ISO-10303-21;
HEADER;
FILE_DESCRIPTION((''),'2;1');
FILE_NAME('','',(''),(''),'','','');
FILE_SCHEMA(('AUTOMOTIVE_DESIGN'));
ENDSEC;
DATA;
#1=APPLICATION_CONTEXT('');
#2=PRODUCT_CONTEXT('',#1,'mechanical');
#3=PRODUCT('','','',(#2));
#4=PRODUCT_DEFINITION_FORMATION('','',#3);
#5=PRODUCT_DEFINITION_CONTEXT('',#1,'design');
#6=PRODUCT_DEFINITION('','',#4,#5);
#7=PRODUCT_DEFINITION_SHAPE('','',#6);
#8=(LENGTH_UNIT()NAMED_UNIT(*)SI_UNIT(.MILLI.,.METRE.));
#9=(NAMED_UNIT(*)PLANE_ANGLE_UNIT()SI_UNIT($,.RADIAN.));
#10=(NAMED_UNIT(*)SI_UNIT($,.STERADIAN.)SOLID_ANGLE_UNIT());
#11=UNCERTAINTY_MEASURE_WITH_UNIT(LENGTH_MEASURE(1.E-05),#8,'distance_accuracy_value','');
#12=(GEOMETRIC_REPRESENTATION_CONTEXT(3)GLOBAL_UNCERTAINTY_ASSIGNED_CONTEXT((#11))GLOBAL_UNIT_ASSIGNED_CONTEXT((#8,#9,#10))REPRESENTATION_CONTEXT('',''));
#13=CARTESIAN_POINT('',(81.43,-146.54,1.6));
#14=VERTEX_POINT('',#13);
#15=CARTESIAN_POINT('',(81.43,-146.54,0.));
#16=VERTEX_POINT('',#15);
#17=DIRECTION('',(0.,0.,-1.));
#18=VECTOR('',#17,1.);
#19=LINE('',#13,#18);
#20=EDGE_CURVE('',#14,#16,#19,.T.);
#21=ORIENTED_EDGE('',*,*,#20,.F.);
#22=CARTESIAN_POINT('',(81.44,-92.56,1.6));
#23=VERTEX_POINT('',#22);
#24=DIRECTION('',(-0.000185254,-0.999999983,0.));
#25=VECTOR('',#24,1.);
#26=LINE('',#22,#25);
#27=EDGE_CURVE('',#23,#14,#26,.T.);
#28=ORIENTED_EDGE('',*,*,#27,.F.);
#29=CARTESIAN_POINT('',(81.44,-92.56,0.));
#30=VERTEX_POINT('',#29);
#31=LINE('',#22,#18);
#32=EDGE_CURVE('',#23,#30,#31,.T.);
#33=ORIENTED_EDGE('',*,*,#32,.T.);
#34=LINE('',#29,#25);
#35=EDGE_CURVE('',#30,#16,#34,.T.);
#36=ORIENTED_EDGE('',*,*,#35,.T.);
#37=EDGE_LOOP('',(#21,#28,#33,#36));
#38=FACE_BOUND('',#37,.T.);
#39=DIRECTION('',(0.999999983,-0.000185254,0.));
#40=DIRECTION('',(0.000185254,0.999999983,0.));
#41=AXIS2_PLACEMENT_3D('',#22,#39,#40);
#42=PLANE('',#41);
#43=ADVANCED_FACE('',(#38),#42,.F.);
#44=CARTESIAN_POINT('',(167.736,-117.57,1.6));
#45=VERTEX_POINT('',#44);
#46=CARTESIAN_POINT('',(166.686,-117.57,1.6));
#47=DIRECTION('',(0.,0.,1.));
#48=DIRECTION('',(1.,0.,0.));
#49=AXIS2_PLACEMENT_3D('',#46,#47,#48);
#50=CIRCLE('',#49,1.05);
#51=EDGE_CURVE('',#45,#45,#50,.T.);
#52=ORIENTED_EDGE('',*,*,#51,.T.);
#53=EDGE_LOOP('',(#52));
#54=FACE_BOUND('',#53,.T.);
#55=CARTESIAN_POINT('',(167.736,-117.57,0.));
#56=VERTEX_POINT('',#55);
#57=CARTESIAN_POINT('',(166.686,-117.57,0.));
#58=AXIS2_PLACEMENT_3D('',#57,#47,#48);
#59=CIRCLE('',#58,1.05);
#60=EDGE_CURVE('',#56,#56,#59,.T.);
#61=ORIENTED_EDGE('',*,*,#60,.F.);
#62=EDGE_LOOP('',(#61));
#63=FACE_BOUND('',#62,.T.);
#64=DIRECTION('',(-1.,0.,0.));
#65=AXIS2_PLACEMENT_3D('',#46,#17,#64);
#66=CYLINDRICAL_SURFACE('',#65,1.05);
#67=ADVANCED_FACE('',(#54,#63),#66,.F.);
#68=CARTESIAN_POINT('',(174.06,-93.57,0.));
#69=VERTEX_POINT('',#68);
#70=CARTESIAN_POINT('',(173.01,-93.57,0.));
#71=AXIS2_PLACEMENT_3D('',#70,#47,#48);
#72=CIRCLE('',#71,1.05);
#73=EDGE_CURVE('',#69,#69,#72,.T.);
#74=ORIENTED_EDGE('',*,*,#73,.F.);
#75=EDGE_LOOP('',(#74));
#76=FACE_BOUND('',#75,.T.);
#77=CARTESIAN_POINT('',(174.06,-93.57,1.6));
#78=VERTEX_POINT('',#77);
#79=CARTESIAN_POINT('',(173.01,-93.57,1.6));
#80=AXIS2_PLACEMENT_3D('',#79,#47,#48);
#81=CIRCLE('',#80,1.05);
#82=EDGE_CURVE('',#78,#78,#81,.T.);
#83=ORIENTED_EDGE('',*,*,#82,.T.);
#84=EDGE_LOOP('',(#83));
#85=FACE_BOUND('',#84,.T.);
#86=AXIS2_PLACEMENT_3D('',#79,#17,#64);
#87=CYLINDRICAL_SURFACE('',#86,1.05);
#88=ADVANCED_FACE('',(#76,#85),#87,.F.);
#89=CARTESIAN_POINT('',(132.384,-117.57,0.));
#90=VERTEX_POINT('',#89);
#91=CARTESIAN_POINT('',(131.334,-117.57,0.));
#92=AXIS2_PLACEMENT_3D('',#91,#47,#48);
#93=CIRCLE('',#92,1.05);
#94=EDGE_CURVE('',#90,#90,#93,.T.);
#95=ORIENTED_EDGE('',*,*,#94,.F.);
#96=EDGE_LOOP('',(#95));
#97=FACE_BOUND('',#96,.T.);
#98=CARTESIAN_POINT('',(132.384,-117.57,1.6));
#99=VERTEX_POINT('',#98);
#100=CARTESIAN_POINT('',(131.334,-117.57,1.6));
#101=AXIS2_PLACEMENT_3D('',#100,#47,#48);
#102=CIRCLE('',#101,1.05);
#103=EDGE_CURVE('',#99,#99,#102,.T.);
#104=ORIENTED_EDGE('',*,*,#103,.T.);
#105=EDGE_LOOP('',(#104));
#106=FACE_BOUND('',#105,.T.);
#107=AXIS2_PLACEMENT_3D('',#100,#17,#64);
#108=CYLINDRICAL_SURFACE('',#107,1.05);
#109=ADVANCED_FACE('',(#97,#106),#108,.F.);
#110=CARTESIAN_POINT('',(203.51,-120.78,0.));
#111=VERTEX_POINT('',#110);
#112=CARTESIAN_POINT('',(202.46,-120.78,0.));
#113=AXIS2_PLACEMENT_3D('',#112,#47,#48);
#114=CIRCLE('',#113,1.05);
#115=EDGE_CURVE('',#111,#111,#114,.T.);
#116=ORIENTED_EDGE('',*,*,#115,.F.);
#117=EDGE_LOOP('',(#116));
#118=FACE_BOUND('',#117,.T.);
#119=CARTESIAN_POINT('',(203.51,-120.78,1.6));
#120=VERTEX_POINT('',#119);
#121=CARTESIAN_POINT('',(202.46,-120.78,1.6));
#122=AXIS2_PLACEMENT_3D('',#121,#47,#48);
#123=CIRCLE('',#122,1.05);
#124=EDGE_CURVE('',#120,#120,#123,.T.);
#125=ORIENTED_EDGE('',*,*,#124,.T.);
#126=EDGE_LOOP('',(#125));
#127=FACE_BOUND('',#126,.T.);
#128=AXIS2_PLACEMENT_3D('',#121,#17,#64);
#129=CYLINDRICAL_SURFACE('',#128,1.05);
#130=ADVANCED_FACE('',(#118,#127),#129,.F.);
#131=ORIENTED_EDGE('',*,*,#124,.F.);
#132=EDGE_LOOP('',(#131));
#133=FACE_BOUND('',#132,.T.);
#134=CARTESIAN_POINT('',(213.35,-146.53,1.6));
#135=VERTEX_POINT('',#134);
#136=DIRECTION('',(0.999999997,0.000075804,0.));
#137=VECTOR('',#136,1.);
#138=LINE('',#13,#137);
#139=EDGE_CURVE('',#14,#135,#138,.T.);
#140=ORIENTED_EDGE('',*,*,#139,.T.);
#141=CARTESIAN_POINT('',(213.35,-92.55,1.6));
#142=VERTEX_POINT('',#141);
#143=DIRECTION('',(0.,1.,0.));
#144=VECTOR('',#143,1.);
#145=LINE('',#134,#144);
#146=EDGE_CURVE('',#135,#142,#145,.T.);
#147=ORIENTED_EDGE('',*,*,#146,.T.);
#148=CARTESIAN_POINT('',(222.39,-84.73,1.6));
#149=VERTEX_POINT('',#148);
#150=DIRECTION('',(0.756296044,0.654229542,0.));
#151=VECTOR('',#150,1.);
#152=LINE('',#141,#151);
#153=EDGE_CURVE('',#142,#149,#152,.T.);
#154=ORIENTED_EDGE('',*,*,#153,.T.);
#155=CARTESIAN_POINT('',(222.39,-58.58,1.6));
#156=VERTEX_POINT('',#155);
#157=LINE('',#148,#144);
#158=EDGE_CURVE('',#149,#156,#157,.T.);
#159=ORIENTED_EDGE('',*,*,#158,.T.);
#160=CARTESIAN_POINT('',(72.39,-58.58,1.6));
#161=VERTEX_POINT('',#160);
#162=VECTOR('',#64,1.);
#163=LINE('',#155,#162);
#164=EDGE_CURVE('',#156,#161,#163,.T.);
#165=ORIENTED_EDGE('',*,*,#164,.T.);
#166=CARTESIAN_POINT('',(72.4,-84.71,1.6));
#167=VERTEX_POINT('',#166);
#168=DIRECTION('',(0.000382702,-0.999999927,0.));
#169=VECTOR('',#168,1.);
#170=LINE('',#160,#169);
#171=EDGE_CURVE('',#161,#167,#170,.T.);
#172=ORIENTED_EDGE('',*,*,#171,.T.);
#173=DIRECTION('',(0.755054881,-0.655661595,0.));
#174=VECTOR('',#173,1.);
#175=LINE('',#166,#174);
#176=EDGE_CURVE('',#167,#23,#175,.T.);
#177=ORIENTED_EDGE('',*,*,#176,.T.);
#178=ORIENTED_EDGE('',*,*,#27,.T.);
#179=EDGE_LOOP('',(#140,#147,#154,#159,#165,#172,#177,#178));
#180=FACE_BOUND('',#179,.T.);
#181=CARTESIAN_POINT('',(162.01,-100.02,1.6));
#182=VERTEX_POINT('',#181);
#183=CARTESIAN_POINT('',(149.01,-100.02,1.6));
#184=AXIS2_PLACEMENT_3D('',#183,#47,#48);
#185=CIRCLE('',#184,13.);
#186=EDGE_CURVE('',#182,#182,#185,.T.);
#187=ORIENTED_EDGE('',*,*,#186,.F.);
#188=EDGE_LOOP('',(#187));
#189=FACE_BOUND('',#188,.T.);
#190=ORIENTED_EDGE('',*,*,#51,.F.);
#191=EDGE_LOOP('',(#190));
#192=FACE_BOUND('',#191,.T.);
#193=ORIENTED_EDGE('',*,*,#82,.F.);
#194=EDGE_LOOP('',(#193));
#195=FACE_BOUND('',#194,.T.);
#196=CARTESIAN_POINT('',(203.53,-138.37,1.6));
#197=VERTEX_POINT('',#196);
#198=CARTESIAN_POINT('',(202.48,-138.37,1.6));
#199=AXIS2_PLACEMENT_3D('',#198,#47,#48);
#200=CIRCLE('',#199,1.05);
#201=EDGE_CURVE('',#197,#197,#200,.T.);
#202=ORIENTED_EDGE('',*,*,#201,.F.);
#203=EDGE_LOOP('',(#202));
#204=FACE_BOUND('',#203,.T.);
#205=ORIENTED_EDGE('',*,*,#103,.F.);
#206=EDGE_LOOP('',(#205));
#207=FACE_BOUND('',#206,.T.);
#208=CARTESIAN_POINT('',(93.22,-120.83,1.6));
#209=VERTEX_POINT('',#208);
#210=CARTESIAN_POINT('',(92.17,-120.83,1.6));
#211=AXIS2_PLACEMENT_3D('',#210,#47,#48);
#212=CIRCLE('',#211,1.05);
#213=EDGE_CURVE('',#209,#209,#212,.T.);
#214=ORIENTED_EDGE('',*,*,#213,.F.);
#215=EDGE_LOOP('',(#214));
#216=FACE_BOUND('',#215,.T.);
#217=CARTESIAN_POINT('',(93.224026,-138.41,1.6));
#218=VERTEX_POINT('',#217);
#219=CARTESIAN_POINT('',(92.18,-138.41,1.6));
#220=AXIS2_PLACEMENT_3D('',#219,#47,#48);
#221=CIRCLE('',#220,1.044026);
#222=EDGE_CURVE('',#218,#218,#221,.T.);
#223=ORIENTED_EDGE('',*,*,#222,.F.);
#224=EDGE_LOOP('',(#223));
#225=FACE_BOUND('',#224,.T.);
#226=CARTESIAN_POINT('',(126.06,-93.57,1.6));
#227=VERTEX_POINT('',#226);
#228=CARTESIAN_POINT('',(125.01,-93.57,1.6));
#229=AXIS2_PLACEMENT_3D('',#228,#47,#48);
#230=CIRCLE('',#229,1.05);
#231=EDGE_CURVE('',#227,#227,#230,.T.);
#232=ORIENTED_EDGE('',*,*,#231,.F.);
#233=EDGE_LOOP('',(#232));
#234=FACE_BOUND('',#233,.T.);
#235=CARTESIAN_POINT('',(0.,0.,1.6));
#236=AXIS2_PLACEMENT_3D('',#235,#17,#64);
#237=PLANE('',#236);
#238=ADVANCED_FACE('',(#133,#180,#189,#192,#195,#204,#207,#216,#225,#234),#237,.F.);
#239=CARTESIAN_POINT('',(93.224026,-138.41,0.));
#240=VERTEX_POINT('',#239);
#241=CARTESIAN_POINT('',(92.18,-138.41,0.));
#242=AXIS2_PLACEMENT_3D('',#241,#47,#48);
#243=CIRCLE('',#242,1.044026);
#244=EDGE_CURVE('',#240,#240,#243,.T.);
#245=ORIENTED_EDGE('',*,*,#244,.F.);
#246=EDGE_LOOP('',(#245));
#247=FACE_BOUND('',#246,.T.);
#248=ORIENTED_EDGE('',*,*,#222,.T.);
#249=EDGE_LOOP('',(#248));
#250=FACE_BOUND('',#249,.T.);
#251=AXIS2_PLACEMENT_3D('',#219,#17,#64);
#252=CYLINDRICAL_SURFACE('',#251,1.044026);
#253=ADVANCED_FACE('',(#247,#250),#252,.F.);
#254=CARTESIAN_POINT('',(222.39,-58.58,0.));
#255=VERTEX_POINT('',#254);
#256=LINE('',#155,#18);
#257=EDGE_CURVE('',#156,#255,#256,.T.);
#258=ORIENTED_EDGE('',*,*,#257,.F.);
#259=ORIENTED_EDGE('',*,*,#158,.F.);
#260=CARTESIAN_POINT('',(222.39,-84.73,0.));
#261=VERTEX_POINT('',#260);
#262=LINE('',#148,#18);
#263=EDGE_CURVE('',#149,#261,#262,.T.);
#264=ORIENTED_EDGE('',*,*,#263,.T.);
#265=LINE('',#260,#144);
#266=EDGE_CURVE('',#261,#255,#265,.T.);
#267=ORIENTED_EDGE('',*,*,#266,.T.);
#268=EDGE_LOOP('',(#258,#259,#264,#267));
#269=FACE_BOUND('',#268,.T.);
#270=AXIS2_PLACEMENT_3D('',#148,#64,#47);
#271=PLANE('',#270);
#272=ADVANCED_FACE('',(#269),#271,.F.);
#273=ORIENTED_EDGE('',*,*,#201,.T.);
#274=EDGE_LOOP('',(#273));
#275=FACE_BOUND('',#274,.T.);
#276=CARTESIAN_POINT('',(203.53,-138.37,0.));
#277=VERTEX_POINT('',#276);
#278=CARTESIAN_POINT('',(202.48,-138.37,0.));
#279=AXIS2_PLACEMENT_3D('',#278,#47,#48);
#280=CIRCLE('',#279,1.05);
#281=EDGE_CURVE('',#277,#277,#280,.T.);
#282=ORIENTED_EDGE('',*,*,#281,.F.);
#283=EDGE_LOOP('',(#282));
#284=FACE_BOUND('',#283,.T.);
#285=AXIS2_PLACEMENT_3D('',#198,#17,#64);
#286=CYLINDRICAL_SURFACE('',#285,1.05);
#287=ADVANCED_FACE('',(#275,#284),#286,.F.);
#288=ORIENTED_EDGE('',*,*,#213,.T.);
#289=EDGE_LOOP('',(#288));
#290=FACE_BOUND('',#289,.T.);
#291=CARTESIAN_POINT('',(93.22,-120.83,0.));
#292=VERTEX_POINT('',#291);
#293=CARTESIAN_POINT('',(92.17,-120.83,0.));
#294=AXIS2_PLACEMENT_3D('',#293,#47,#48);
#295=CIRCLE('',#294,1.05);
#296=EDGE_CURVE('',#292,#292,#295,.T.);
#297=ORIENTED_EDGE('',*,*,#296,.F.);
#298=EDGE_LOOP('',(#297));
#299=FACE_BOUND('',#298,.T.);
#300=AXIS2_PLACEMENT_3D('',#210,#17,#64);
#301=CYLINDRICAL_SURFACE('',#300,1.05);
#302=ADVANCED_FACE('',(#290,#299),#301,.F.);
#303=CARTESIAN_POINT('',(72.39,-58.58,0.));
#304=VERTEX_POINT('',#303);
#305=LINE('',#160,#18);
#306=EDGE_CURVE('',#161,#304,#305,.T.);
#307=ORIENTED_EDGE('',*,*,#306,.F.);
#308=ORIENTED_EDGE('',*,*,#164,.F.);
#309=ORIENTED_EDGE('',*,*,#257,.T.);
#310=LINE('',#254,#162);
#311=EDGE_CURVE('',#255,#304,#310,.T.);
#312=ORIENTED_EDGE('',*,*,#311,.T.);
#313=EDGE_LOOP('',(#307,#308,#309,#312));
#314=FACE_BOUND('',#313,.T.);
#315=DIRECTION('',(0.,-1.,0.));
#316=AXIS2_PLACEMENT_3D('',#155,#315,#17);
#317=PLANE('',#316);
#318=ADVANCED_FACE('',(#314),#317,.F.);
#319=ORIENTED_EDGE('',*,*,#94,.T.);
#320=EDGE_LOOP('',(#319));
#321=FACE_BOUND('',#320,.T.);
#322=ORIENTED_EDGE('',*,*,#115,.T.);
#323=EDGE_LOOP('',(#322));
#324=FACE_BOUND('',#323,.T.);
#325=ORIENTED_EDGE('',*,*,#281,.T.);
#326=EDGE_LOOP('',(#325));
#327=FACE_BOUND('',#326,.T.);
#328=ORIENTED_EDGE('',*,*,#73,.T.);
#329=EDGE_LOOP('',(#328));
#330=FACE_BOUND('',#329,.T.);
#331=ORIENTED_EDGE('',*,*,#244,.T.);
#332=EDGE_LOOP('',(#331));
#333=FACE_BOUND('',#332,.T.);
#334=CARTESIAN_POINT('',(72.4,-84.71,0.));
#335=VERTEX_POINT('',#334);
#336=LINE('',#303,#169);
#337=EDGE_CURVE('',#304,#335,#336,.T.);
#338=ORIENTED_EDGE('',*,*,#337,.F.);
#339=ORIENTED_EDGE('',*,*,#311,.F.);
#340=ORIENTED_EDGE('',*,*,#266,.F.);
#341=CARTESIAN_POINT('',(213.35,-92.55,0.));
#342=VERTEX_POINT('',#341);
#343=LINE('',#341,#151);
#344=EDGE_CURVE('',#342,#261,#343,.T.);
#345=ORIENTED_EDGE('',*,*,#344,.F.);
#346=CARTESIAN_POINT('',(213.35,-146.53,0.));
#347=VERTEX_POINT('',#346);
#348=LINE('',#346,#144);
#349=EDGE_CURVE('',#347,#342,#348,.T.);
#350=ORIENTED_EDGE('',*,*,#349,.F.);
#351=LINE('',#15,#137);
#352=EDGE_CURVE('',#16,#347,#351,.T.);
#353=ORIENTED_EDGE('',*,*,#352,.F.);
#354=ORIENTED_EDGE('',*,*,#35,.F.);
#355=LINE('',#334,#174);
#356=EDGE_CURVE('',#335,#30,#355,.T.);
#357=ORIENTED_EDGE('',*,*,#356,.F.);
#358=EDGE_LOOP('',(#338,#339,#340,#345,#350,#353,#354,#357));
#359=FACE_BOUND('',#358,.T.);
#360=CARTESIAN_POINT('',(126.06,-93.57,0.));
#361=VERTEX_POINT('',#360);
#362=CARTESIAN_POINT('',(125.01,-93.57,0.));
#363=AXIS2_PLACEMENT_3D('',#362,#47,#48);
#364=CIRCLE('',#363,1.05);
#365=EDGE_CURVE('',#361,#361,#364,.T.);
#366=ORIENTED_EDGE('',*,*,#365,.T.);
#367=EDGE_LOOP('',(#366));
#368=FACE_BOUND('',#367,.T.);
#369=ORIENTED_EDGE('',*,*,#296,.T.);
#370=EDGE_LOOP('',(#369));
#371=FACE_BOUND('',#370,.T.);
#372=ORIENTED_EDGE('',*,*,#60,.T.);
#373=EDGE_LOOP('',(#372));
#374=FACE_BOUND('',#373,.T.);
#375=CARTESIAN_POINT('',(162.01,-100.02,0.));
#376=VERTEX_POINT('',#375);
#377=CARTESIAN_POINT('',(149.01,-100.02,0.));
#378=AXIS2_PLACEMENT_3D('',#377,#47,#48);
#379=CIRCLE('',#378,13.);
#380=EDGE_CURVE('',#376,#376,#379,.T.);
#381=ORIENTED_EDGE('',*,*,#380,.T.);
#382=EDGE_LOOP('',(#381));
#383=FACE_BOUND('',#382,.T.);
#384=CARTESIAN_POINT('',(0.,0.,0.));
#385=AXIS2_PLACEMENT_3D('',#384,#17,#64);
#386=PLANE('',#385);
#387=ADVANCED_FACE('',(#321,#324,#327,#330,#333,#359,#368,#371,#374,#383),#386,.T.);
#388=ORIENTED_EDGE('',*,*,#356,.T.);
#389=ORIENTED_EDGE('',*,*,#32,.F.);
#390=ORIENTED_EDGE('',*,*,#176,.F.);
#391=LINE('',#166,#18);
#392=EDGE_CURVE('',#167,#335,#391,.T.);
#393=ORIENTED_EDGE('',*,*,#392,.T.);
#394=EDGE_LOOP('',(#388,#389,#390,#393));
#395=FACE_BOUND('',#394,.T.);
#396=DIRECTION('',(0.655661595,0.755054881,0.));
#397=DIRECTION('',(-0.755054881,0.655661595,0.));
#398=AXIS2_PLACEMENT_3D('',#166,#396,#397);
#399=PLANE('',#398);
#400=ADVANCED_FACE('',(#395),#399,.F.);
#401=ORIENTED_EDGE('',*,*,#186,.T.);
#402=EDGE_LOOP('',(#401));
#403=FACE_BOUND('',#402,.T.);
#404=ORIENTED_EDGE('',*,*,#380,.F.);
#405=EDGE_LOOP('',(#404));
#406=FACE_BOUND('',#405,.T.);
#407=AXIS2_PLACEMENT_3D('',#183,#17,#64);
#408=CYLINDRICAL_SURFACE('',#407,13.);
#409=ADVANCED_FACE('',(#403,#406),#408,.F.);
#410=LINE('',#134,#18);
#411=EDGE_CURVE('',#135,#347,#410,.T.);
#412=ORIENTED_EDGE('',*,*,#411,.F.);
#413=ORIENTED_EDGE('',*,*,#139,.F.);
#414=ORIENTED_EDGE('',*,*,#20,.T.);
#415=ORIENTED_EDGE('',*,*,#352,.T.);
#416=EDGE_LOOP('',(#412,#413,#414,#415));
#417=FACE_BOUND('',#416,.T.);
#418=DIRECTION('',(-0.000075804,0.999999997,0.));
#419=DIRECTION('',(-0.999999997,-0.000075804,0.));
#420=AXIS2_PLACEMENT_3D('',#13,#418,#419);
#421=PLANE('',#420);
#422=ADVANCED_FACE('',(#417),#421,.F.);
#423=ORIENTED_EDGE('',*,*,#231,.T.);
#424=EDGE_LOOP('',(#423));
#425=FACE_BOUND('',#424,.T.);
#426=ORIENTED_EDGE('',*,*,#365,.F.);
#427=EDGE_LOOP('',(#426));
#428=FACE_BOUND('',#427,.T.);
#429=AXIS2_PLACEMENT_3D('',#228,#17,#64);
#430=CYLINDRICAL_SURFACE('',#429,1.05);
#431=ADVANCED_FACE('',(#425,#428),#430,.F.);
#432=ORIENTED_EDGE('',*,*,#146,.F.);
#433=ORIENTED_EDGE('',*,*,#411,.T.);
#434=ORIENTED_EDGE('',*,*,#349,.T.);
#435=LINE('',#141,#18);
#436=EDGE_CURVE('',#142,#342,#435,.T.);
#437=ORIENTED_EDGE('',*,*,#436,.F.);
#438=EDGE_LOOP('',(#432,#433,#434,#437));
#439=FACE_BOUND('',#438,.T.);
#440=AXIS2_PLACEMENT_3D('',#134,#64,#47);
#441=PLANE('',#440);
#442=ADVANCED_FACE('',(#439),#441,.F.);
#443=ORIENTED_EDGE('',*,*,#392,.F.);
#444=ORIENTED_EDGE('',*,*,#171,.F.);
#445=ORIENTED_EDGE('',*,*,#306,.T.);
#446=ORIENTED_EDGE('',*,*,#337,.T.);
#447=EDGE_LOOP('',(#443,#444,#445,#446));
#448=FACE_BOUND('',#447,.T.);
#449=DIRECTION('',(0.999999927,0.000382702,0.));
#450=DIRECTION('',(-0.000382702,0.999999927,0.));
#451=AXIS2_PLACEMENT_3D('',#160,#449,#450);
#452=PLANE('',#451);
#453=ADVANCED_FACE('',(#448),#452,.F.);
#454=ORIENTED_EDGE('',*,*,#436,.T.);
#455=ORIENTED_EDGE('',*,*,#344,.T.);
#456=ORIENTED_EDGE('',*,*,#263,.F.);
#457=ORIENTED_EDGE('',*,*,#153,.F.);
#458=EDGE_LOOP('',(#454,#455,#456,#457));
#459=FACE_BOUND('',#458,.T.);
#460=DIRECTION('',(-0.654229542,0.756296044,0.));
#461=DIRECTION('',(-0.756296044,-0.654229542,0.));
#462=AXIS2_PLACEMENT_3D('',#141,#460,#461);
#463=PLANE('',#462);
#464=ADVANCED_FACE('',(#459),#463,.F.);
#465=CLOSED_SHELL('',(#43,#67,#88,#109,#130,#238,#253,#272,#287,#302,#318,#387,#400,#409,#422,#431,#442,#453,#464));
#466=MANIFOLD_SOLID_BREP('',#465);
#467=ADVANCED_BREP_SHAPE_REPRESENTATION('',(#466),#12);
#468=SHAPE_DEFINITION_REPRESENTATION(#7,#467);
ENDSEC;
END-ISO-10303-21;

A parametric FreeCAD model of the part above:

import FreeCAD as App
import Part
import Sketcher

V = App.Vector
Q = App.Units.Quantity


def add_polygon(sketch, points):
    """Adds a closed chain of lines whose ends are joined by coincident constraints."""
    first, n = sketch.GeometryCount, len(points)
    for a, b in zip(points, points[1:] + points[:1]):
        sketch.addGeometry(Part.LineSegment(App.Vector(*a, 0), App.Vector(*b, 0)), False)
    for i in range(n):
        sketch.addConstraint(Sketcher.Constraint("Coincident", first + i, 2, first + (i + 1) % n, 1))

doc = App.newDocument("Part")
body = doc.addObject("PartDesign::Body", "Body")

# Sketch on XY plane
sketch1 = doc.addObject("Sketcher::SketchObject", "Sketch")
body.addObject(sketch1)
sketch1.AttachmentSupport = (doc.XY_Plane, [""])
sketch1.MapMode = "FlatFace"
add_polygon(sketch1, [(72.4, -58.6), (72.4, -84.7), (81.4, -92.6), (81.4, -146.5), (213.3, -146.5), (213.3, -92.5), (222.4, -84.7), (222.4, -58.6)])  # lines 0-7
sketch1.addGeometry(Part.Circle(V(92.2, -138.4, 0), V(0, 0, 1), 1), False)  # 8
sketch1.addGeometry(Part.Circle(V(92.2, -120.8, 0), V(0, 0, 1), 1.1), False)  # 9
sketch1.addGeometry(Part.Circle(V(131.3, -117.6, 0), V(0, 0, 1), 1.1), False)  # 10
sketch1.addGeometry(Part.Circle(V(202.5, -138.4, 0), V(0, 0, 1), 1.1), False)  # 11
sketch1.addGeometry(Part.Circle(V(166.7, -117.6, 0), V(0, 0, 1), 1.1), False)  # 12
sketch1.addGeometry(Part.Circle(V(202.5, -120.8, 0), V(0, 0, 1), 1.1), False)  # 13
sketch1.addGeometry(Part.Circle(V(125, -93.6, 0), V(0, 0, 1), 1.1), False)  # 14
sketch1.addGeometry(Part.Circle(V(149, -100, 0), V(0, 0, 1), 13), False)  # 15
sketch1.addGeometry(Part.Circle(V(173, -93.6, 0), V(0, 0, 1), 1.1), False)  # 16
sketch1.addConstraint(Sketcher.Constraint("Vertical", 4))
sketch1.addConstraint(Sketcher.Constraint("Vertical", 6))
sketch1.addConstraint(Sketcher.Constraint("Horizontal", 7))
sketch1.addConstraint(Sketcher.Constraint("Equal", 9, 10))
sketch1.addConstraint(Sketcher.Constraint("Equal", 10, 11))
sketch1.addConstraint(Sketcher.Constraint("Equal", 11, 12))
sketch1.addConstraint(Sketcher.Constraint("Equal", 12, 13))
sketch1.addConstraint(Sketcher.Constraint("Equal", 13, 14))
sketch1.addConstraint(Sketcher.Constraint("Equal", 14, 16))
sketch1.addConstraint(Sketcher.Constraint("Horizontal", 10, 3, 12, 3))
sketch1.addConstraint(Sketcher.Constraint("Horizontal", 14, 3, 16, 3))
sketch1.addConstraint(Sketcher.Constraint("Diameter", 15, Q("26 mm")))
sketch1.addConstraint(Sketcher.Constraint("Diameter", 9, Q("2.1 mm")))
sketch1.addConstraint(Sketcher.Constraint("DistanceX", 7, 2, 7, 1, Q("150 mm")))
sketch1.addConstraint(Sketcher.Constraint("DistanceY", 10, 3, 14, 3, Q("24 mm")))
sketch1.addConstraint(Sketcher.Constraint("DistanceX", 14, 3, 15, 3, Q("24 mm")))
sketch1.addConstraint(Sketcher.Constraint("DistanceX", 15, 3, 16, 3, Q("24 mm")))
sketch1.addConstraint(Sketcher.Constraint("DistanceY", 4, 1, 4, 2, Q("53.98 mm")))
sketch1.addConstraint(Sketcher.Constraint("DistanceY", 6, 1, 6, 2, Q("26.15 mm")))
sketch1.addConstraint(Sketcher.Constraint("DistanceX", -1, 1, 0, 2, Q("72.4 mm")))
sketch1.addConstraint(Sketcher.Constraint("DistanceY", 11, 3, 10, 3, Q("20.8 mm")))
sketch1.addConstraint(Sketcher.Constraint("DistanceX", 8, 3, 11, 3, Q("110.3 mm")))
sketch1.addConstraint(Sketcher.Constraint("DistanceY", 8, 3, 0, 2, Q("53.7 mm")))
sketch1.addConstraint(Sketcher.Constraint("DistanceY", 3, 2, 5, 2, Q("61.8 mm")))
sketch1.addConstraint(Sketcher.Constraint("DistanceY", 13, 3, 6, 2, Q("62.2 mm")))
sketch1.addConstraint(Sketcher.Constraint("Distance", 0, Q("26.130002 mm")))
sketch1.addConstraint(Sketcher.Constraint("Distance", 2, Q("53.980001 mm")))
sketch1.addConstraint(Sketcher.Constraint("Distance", 3, Q("131.92 mm")))
sketch1.addConstraint(Sketcher.Constraint("DistanceX", -1, 1, 8, 3, Q("92.18 mm")))
sketch1.addConstraint(Sketcher.Constraint("DistanceY", 8, 3, -1, 1, Q("138.41 mm")))
sketch1.addConstraint(Sketcher.Constraint("DistanceX", -1, 1, 9, 3, Q("92.17 mm")))
sketch1.addConstraint(Sketcher.Constraint("DistanceY", 9, 3, -1, 1, Q("120.83 mm")))
sketch1.addConstraint(Sketcher.Constraint("DistanceY", 10, 3, -1, 1, Q("117.57 mm")))
sketch1.addConstraint(Sketcher.Constraint("DistanceX", -1, 1, 13, 3, Q("202.46 mm")))
sketch1.addConstraint(Sketcher.Constraint("DistanceX", -1, 1, 14, 3, Q("125.01 mm")))
sketch1.addConstraint(Sketcher.Constraint("DistanceY", 15, 3, -1, 1, Q("100.02 mm")))
sketch1.addConstraint(Sketcher.Constraint("DistanceX", -1, 1, 1, 2, Q("81.44 mm")))
sketch1.addConstraint(Sketcher.Constraint("DistanceY", 1, 2, -1, 1, Q("92.56 mm")))
sketch1.addConstraint(Sketcher.Constraint("DistanceX", -1, 1, 2, 2, Q("81.43 mm")))
sketch1.addConstraint(Sketcher.Constraint("DistanceX", -1, 1, 5, 2, Q("222.39 mm")))
sketch1.addConstraint(Sketcher.Constraint("Diameter", 8, Q("2.088053 mm")))
sketch1.addConstraint(Sketcher.Constraint("DistanceX", -1, 1, 10, 3, Q("131.334 mm")))
sketch1.addConstraint(Sketcher.Constraint("DistanceX", -1, 1, 12, 3, Q("166.686 mm")))
pad1 = doc.addObject("PartDesign::Pad", "Pad")
body.addObject(pad1)
pad1.Profile = sketch1
pad1.Length = 1.6

doc.recompute()
